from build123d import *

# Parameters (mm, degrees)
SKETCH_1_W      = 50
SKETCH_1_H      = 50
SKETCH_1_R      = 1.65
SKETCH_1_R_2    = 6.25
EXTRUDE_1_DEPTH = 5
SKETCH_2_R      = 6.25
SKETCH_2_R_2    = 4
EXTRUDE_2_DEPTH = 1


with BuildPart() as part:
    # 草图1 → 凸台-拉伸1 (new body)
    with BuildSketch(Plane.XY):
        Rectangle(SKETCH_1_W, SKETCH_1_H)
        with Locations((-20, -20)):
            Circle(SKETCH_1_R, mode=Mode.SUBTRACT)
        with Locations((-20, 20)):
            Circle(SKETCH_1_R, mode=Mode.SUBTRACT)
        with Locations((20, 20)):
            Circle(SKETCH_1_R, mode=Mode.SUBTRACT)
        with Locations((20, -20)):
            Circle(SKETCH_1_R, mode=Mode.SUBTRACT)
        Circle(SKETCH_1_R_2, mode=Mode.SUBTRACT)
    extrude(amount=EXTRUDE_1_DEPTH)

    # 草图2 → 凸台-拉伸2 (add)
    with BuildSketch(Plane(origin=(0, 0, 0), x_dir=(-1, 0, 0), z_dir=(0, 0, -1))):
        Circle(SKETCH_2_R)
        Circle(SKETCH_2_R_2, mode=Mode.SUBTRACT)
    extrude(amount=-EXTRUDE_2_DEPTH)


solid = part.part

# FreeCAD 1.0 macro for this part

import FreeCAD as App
import Part
import Sketcher


def add_polygon(sketch, points):
    """Adds a closed chain of lines whose ends are joined by coincident constraints."""
    first, n = sketch.GeometryCount, len(points)
    for a, b in zip(points, points[1:] + points[:1]):
        sketch.addGeometry(Part.LineSegment(App.Vector(*a, 0), App.Vector(*b, 0)), False)
    for i in range(n):
        sketch.addConstraint(Sketcher.Constraint("Coincident", first + i, 2, first + (i + 1) % n, 1))

doc = App.newDocument("Part")
body = doc.addObject("PartDesign::Body", "Body")

# Sketch on XY plane
sketch1 = body.newObject("Sketcher::SketchObject", "Sketch")
sketch1.AttachmentSupport = (doc.getObject("XY_Plane"), [""])
sketch1.MapMode = "FlatFace"
add_polygon(sketch1, [(-25, 25), (-25, -25), (25, -25), (25, 25)])  # lines 0-3
sketch1.addGeometry(Part.Circle(App.Vector(-20, -20, 0), App.Vector(0, 0, 1), 1.65), False)  # 4
sketch1.addGeometry(Part.Circle(App.Vector(20, -20, 0), App.Vector(0, 0, 1), 1.65), False)  # 5
sketch1.addGeometry(Part.Circle(App.Vector(-20, 20, 0), App.Vector(0, 0, 1), 1.65), False)  # 6
sketch1.addGeometry(Part.Circle(App.Vector(0, 0, 0), App.Vector(0, 0, 1), 6.25), False)  # 7
sketch1.addGeometry(Part.Circle(App.Vector(20, 20, 0), App.Vector(0, 0, 1), 1.65), False)  # 8
sketch1.addConstraint(Sketcher.Constraint("Vertical", 0))
sketch1.addConstraint(Sketcher.Constraint("Horizontal", 1))
sketch1.addConstraint(Sketcher.Constraint("Vertical", 2))
sketch1.addConstraint(Sketcher.Constraint("Horizontal", 3))
sketch1.addConstraint(Sketcher.Constraint("Coincident", 7, 3, -1, 1))
sketch1.addConstraint(Sketcher.Constraint("Equal", 4, 5))
sketch1.addConstraint(Sketcher.Constraint("Equal", 5, 6))
sketch1.addConstraint(Sketcher.Constraint("Equal", 6, 8))
sketch1.addConstraint(Sketcher.Constraint("Symmetric", 5, 3, 6, 3, -1, 1))
sketch1.addConstraint(Sketcher.Constraint("Symmetric", 4, 3, 8, 3, -1, 1))
sketch1.addConstraint(Sketcher.Constraint("Symmetric", 0, 2, 2, 2, -1, 1))
sketch1.addConstraint(Sketcher.Constraint("Symmetric", 4, 3, 5, 3, -2))
sketch1.addConstraint(Sketcher.Constraint("Equal", 3, 0))
sketch1.addConstraint(Sketcher.Constraint("Diameter", 4, 3.3))
sketch1.addConstraint(Sketcher.Constraint("Diameter", 7, 12.5))
sketch1.addConstraint(Sketcher.Constraint("DistanceX", 1, 1, 1, 2, 50.0))
sketch1.addConstraint(Sketcher.Constraint("DistanceX", 4, 3, -1, 1, 20.0))
sketch1.addConstraint(Sketcher.Constraint("DistanceY", 4, 3, -1, 1, 20.0))
pad1 = body.newObject("PartDesign::Pad", "Pad")
pad1.Profile = sketch1
pad1.Length = 5

# Sketch on XY plane
sketch2 = body.newObject("Sketcher::SketchObject", "Sketch001")
sketch2.AttachmentSupport = (doc.getObject("XY_Plane"), [""])
sketch2.MapMode = "FlatFace"
sketch2.addGeometry(Part.Circle(App.Vector(0, 0, 0), App.Vector(0, 0, 1), 6.25), False)
sketch2.addGeometry(Part.Circle(App.Vector(0, 0, 0), App.Vector(0, 0, 1), 4), False)
sketch2.addConstraint(Sketcher.Constraint("Coincident", 0, 3, -1, 1))
sketch2.addConstraint(Sketcher.Constraint("Coincident", 1, 3, -1, 1))
sketch2.addConstraint(Sketcher.Constraint("Diameter", 1, 8.0))
sketch2.addConstraint(Sketcher.Constraint("Diameter", 0, 12.5))
pad2 = body.newObject("PartDesign::Pad", "Pad001")
pad2.Profile = sketch2
pad2.Length = 1

doc.recompute()
